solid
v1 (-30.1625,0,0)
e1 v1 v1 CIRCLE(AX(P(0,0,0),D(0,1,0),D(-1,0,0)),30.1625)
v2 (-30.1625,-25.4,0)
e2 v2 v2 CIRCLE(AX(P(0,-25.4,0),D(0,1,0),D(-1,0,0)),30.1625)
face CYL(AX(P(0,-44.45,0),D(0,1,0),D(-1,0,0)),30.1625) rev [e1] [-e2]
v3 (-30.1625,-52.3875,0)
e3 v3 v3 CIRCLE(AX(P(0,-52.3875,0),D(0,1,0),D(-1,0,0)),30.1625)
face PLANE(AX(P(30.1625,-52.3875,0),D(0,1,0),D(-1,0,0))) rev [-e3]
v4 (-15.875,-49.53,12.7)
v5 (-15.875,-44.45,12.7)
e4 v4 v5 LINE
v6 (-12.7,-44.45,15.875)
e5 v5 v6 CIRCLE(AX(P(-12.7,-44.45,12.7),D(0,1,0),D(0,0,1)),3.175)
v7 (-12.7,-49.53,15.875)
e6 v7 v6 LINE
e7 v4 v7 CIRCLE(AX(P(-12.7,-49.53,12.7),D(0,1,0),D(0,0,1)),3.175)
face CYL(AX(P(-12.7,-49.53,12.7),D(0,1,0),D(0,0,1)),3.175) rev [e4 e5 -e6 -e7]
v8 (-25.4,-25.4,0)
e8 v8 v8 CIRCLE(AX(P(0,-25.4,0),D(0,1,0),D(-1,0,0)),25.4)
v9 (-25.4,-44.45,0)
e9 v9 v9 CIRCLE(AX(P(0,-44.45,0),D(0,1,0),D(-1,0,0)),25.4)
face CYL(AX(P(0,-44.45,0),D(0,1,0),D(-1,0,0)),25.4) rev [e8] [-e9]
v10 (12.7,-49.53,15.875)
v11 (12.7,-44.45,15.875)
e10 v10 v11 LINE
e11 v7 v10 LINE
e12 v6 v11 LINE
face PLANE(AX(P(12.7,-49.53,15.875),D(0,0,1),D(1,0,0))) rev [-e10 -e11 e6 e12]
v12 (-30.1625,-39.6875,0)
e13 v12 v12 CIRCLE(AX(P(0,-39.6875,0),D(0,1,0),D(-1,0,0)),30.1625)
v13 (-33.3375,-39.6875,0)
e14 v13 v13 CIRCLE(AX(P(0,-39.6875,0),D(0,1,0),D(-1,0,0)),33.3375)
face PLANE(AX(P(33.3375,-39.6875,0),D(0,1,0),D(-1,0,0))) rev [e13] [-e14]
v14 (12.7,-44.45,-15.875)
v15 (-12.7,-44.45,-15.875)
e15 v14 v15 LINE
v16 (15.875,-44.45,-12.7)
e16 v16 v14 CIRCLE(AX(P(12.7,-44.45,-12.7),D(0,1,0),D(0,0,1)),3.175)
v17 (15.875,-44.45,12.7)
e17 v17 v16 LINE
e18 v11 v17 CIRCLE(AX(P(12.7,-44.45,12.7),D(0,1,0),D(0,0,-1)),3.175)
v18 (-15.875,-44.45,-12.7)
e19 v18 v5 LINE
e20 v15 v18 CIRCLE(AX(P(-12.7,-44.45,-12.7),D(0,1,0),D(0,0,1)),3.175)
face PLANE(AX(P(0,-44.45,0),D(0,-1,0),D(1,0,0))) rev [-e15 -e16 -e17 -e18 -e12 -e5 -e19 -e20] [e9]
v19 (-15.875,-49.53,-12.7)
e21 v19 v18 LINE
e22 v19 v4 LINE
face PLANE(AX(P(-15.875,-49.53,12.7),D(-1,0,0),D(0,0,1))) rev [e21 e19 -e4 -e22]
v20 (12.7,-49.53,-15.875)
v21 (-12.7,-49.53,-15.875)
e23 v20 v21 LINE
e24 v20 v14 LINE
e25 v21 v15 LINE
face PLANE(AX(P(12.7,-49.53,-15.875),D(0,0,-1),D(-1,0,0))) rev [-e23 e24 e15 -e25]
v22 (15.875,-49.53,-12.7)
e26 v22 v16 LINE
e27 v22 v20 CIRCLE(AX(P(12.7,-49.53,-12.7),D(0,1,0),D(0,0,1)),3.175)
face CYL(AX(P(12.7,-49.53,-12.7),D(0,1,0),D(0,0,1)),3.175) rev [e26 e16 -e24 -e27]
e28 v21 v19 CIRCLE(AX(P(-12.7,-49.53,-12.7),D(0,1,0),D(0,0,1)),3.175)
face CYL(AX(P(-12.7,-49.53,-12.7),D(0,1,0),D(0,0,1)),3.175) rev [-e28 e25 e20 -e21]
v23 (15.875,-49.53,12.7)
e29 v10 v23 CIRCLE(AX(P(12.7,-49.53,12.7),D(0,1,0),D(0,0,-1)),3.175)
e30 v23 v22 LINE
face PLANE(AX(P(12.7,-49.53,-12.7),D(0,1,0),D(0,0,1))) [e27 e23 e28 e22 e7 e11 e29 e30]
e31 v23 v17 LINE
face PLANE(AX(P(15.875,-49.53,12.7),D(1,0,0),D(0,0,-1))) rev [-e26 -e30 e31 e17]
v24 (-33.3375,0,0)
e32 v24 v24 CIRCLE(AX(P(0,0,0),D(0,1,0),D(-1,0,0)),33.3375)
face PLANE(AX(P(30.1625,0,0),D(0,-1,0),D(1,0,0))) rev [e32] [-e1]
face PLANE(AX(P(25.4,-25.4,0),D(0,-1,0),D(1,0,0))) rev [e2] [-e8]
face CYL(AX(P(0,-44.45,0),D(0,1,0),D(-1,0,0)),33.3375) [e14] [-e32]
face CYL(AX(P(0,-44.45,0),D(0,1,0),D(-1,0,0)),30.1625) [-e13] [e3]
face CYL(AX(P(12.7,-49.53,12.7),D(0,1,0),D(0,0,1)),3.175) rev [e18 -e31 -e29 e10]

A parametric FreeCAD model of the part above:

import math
import FreeCAD as App
import Part
import Sketcher
Q = App.Units.Quantity


def add_polygon(sketch, points):
    """Adds a closed chain of lines whose ends are joined by coincident constraints."""
    first, n = sketch.GeometryCount, len(points)
    for a, b in zip(points, points[1:] + points[:1]):
        sketch.addGeometry(Part.LineSegment(App.Vector(*a, 0), App.Vector(*b, 0)), False)
    for i in range(n):
        sketch.addConstraint(Sketcher.Constraint("Coincident", first + i, 2, first + (i + 1) % n, 1))

doc = App.newDocument("Part")
body = doc.addObject("PartDesign::Body", "Body")

sketch1 = body.newObject("Sketcher::SketchObject", "Sketch")
sketch1.AttachmentSupport = (doc.getObject("XY_Plane"), [""])
sketch1.MapMode = "FlatFace"
add_polygon(sketch1, [(25.4, -44.5), (0, -44.5), (0, -52.4), (30.2, -52.4), (30.2, -39.7), (33.3, -39.7), (33.3, 0), (30.2, 0), (30.2, -25.4), (25.4, -25.4)])
sketch1.addConstraint([
    Sketcher.Constraint("Horizontal", 0),
    Sketcher.Constraint("Vertical", 1),
    Sketcher.Constraint("Horizontal", 2),
    Sketcher.Constraint("Vertical", 3),
    Sketcher.Constraint("Horizontal", 4),
    Sketcher.Constraint("Vertical", 5),
    Sketcher.Constraint("Horizontal", 6),
    Sketcher.Constraint("Vertical", 7),
    Sketcher.Constraint("Horizontal", 8),
    Sketcher.Constraint("Vertical", 9),
    Sketcher.Constraint("PointOnObject", 0, 2, -2),
    Sketcher.Constraint("PointOnObject", 5, 2, -1),
    Sketcher.Constraint("Vertical", 3, 2, 6, 2),
    Sketcher.Constraint("Equal", 0, 7),
    Sketcher.Constraint("DistanceX", 0, 2, 0, 1, Q("1 in")),
    Sketcher.Constraint("DistanceY", 3, 1, 3, 2, Q("0.5 in")),
    Sketcher.Constraint("DistanceY", 9, 2, 9, 1, Q("0.75 in")),
    Sketcher.Constraint("DistanceX", 2, 1, 2, 2, Q("1.1875 in")),
    Sketcher.Constraint("DistanceX", 4, 1, 4, 2, Q("0.125 in")),
    Sketcher.Constraint("DistanceY", 1, 2, 1, 1, Q("0.3125 in")),
])
revolution = body.newObject("PartDesign::Revolution", "Revolution")
revolution.Profile = sketch1
revolution.ReferenceAxis = (sketch1, ["V_Axis"])
revolution.Angle = 360

sketch2 = body.newObject("Sketcher::SketchObject", "Sketch001")
sketch2.AttachmentSupport = (doc.getObject("XZ_Plane"), [""])
sketch2.MapMode = "FlatFace"
sketch2.AttachmentOffset = App.Placement(App.Vector(0, 0, 1.75 * 25.4), App.Rotation())
sketch2.addGeometry([
    Part.LineSegment(App.Vector(-12.7, 15.9, 0), App.Vector(12.7, 15.9, 0)),
    Part.ArcOfCircle(Part.Circle(App.Vector(12.7, 12.7, 0), App.Vector(0, 0, 1), 3.2), math.radians(0), math.radians(90)),
    Part.LineSegment(App.Vector(15.9, 12.7, 0), App.Vector(15.9, -12.7, 0)),
    Part.ArcOfCircle(Part.Circle(App.Vector(12.7, -12.7, 0), App.Vector(0, 0, 1), 3.2), math.radians(-90), math.radians(0)),
    Part.LineSegment(App.Vector(12.7, -15.9, 0), App.Vector(-12.7, -15.9, 0)),
    Part.ArcOfCircle(Part.Circle(App.Vector(-12.7, -12.7, 0), App.Vector(0, 0, 1), 3.2), math.radians(-180), math.radians(-90)),
    Part.LineSegment(App.Vector(-15.9, -12.7, 0), App.Vector(-15.9, 12.7, 0)),
    Part.ArcOfCircle(Part.Circle(App.Vector(-12.7, 12.7, 0), App.Vector(0, 0, 1), 3.2), math.radians(90), math.radians(180)),
], False)
sketch2.addConstraint([
    Sketcher.Constraint("Tangent", 0, 2, 1, 2),
    Sketcher.Constraint("Tangent", 1, 1, 2, 1),
    Sketcher.Constraint("Tangent", 2, 2, 3, 2),
    Sketcher.Constraint("Tangent", 3, 1, 4, 1),
    Sketcher.Constraint("Tangent", 4, 2, 5, 2),
    Sketcher.Constraint("Tangent", 5, 1, 6, 1),
    Sketcher.Constraint("Tangent", 6, 2, 7, 2),
    Sketcher.Constraint("Tangent", 7, 1, 0, 1),
    Sketcher.Constraint("Horizontal", 0),
    Sketcher.Constraint("Vertical", 2),
    Sketcher.Constraint("Horizontal", 4),
    Sketcher.Constraint("Vertical", 6),
    Sketcher.Constraint("Equal", 1, 3),
    Sketcher.Constraint("Equal", 3, 5),
    Sketcher.Constraint("Equal", 5, 7),
    Sketcher.Constraint("Symmetric", 1, 3, 5, 3, -1, 1),
    Sketcher.Constraint("Equal", 4, 2),
    Sketcher.Constraint("DistanceX", 0, 1, 0, 2, Q("1 in")),
    Sketcher.Constraint("Radius", 1, Q("0.125 in")),
])
pocket1 = body.newObject("PartDesign::Pocket", "Pocket")
pocket1.Profile = sketch2
pocket1.Length = Q("0.2 in")
pocket1.Reversed = True

doc.recompute()
